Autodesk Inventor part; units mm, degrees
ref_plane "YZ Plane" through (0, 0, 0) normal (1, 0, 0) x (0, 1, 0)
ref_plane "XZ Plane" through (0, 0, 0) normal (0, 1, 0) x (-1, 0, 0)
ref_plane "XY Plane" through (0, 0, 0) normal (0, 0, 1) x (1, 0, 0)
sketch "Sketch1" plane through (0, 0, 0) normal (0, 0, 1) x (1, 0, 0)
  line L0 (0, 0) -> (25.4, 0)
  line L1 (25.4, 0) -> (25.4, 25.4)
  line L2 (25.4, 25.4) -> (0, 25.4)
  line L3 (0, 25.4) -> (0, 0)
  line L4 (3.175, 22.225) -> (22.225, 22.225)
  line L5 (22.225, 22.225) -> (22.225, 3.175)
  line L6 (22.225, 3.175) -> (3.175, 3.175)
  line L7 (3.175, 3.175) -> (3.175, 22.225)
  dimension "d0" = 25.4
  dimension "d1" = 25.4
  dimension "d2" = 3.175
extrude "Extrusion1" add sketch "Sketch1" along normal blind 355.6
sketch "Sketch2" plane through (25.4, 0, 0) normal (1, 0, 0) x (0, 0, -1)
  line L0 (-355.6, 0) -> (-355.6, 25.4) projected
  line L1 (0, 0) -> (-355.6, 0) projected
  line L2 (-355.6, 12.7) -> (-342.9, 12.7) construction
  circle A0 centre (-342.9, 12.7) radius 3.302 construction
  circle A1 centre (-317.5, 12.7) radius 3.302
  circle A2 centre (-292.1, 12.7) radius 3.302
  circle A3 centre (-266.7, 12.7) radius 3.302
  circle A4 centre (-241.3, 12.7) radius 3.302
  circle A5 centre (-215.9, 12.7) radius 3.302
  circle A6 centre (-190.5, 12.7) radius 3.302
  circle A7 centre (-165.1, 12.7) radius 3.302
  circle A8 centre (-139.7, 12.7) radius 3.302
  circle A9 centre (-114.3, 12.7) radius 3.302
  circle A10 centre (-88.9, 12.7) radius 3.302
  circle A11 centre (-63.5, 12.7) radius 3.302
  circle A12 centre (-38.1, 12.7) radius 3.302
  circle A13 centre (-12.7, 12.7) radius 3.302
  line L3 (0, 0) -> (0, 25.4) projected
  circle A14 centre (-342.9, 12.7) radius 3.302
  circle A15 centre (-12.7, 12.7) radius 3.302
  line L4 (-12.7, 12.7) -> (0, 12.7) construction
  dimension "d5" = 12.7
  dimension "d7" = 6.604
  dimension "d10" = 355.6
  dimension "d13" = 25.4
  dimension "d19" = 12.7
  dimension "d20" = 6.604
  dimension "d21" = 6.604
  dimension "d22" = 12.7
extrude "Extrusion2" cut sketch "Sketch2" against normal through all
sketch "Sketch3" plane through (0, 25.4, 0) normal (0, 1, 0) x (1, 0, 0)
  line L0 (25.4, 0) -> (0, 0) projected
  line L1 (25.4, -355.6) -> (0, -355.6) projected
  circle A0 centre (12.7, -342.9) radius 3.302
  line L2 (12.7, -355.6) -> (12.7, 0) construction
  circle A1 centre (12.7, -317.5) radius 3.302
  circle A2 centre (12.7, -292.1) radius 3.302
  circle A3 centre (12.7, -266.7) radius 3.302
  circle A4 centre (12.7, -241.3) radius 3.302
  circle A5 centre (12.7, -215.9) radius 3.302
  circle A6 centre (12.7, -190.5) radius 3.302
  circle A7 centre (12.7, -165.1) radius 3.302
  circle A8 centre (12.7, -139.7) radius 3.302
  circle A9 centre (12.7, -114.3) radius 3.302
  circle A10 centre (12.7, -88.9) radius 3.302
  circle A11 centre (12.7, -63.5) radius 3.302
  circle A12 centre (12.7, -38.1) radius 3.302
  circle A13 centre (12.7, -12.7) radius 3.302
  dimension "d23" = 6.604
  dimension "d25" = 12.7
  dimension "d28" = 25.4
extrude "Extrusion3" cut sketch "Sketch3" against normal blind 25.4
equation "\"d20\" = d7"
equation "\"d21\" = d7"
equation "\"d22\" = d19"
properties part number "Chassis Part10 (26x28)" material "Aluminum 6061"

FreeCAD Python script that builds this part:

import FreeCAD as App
import Part
import Sketcher
from FreeCAD import Vector
Q = App.Units.Quantity


def add_polygon(sketch, points):
    """Adds a closed chain of lines whose ends are joined by coincident constraints."""
    first, n = sketch.GeometryCount, len(points)
    for a, b in zip(points, points[1:] + points[:1]):
        sketch.addGeometry(Part.LineSegment(App.Vector(*a, 0), App.Vector(*b, 0)), False)
    for i in range(n):
        sketch.addConstraint(Sketcher.Constraint("Coincident", first + i, 2, first + (i + 1) % n, 1))

doc = App.newDocument("Part")
body = doc.addObject("PartDesign::Body", "Body")

# Sketch on XY plane
sketch1 = doc.addObject("Sketcher::SketchObject", "Sketch")
body.addObject(sketch1)
sketch1.AttachmentSupport = (doc.XY_Plane, [""])
sketch1.MapMode = "FlatFace"
add_polygon(sketch1, [(0, 25), (0, 0), (25, 0), (25, 25)])  # lines 0-3
add_polygon(sketch1, [(3, 3), (3, 22), (22, 22), (22, 3)])  # lines 4-7
sketch1.addConstraint([
    Sketcher.Constraint("Vertical", 0),
    Sketcher.Constraint("Horizontal", 1),
    Sketcher.Constraint("Vertical", 2),
    Sketcher.Constraint("Horizontal", 3),
    Sketcher.Constraint("Vertical", 4),
    Sketcher.Constraint("Horizontal", 5),
    Sketcher.Constraint("Vertical", 6),
    Sketcher.Constraint("Horizontal", 7),
    Sketcher.Constraint("Coincident", 0, 2, -1, 1),
    Sketcher.Constraint("Equal", 3, 0),
    Sketcher.Constraint("Equal", 7, 4),
    Sketcher.Constraint("DistanceX", 1, 1, 1, 2, Q("1 in")),
    Sketcher.Constraint("DistanceX", -1, 1, 4, 2, Q("0.125 in")),
    Sketcher.Constraint("DistanceY", -1, 1, 6, 2, Q("0.125 in")),
    Sketcher.Constraint("DistanceY", 4, 2, 3, 2, Q("0.125 in")),
])
pad1 = doc.addObject("PartDesign::Pad", "Pad")
body.addObject(pad1)
pad1.Profile = sketch1
pad1.Length = Q("14 in")

# Sketch on YZ plane
sketch2 = doc.addObject("Sketcher::SketchObject", "Sketch001")
body.addObject(sketch2)
sketch2.AttachmentSupport = (doc.YZ_Plane, [""])
sketch2.MapMode = "FlatFace"
sketch2.AttachmentOffset = App.Placement(Vector(0, 0, 1 * 25.4), App.Rotation())
sketch2.addGeometry([
    Part.Circle(Vector(12.7, 317.5, 0), Vector(0, 0, 1), 3.3),  # 0
    Part.Circle(Vector(12.7, 292.1, 0), Vector(0, 0, 1), 3.3),  # 1
    Part.Circle(Vector(12.7, 266.7, 0), Vector(0, 0, 1), 3.3),  # 2
    Part.Circle(Vector(12.7, 241.3, 0), Vector(0, 0, 1), 3.3),  # 3
    Part.Circle(Vector(12.7, 215.9, 0), Vector(0, 0, 1), 3.3),  # 4
    Part.Circle(Vector(12.7, 190.5, 0), Vector(0, 0, 1), 3.3),  # 5
    Part.Circle(Vector(12.7, 165.1, 0), Vector(0, 0, 1), 3.3),  # 6
    Part.Circle(Vector(12.7, 139.7, 0), Vector(0, 0, 1), 3.3),  # 7
    Part.Circle(Vector(12.7, 114.3, 0), Vector(0, 0, 1), 3.3),  # 8
    Part.Circle(Vector(12.7, 88.9, 0), Vector(0, 0, 1), 3.3),  # 9
    Part.Circle(Vector(12.7, 63.5, 0), Vector(0, 0, 1), 3.3),  # 10
    Part.Circle(Vector(12.7, 38.1, 0), Vector(0, 0, 1), 3.3),  # 11
    Part.Circle(Vector(12.7, 12.7, 0), Vector(0, 0, 1), 3.3),  # 12
    Part.Circle(Vector(12.7, 342.9, 0), Vector(0, 0, 1), 3.3),  # 13
], False)
sketch2.addConstraint([
    Sketcher.Constraint("Equal", 0, 1),
    Sketcher.Constraint("Equal", 1, 2),
    Sketcher.Constraint("Equal", 2, 3),
    Sketcher.Constraint("Equal", 3, 4),
    Sketcher.Constraint("Equal", 4, 5),
    Sketcher.Constraint("Equal", 5, 6),
    Sketcher.Constraint("Equal", 6, 7),
    Sketcher.Constraint("Equal", 7, 8),
    Sketcher.Constraint("Equal", 8, 9),
    Sketcher.Constraint("Equal", 9, 10),
    Sketcher.Constraint("Equal", 10, 11),
    Sketcher.Constraint("Equal", 11, 12),
    Sketcher.Constraint("Equal", 12, 13),
    Sketcher.Constraint("Vertical", 0, 3, 1, 3),
    Sketcher.Constraint("Vertical", 1, 3, 2, 3),
    Sketcher.Constraint("Vertical", 2, 3, 3, 3),
    Sketcher.Constraint("Vertical", 3, 3, 4, 3),
    Sketcher.Constraint("Vertical", 4, 3, 5, 3),
    Sketcher.Constraint("Vertical", 5, 3, 6, 3),
    Sketcher.Constraint("Vertical", 6, 3, 7, 3),
    Sketcher.Constraint("Vertical", 7, 3, 8, 3),
    Sketcher.Constraint("Vertical", 8, 3, 9, 3),
    Sketcher.Constraint("Vertical", 9, 3, 10, 3),
    Sketcher.Constraint("Vertical", 10, 3, 11, 3),
    Sketcher.Constraint("Vertical", 11, 3, 12, 3),
    Sketcher.Constraint("Vertical", 12, 3, 13, 3),
    Sketcher.Constraint("Diameter", 0, Q("0.26 in")),
    Sketcher.Constraint("DistanceY", 1, 3, 0, 3, Q("1 in")),
    Sketcher.Constraint("DistanceY", 2, 3, 1, 3, Q("1 in")),
    Sketcher.Constraint("DistanceY", 3, 3, 2, 3, Q("1 in")),
    Sketcher.Constraint("DistanceY", 4, 3, 3, 3, Q("1 in")),
    Sketcher.Constraint("DistanceY", 5, 3, 4, 3, Q("1 in")),
    Sketcher.Constraint("DistanceY", 6, 3, 5, 3, Q("1 in")),
    Sketcher.Constraint("DistanceY", 7, 3, 6, 3, Q("1 in")),
    Sketcher.Constraint("DistanceY", 8, 3, 7, 3, Q("1 in")),
    Sketcher.Constraint("DistanceY", 9, 3, 8, 3, Q("1 in")),
    Sketcher.Constraint("DistanceY", 10, 3, 9, 3, Q("1 in")),
    Sketcher.Constraint("DistanceY", 11, 3, 10, 3, Q("1 in")),
    Sketcher.Constraint("DistanceY", 12, 3, 11, 3, Q("1 in")),
    Sketcher.Constraint("DistanceY", 0, 3, 13, 3, Q("1 in")),
    Sketcher.Constraint("DistanceX", -1, 1, 0, 3, Q("0.5 in")),
    Sketcher.Constraint("DistanceY", -1, 1, 12, 3, Q("0.5 in")),
])
pocket1 = doc.addObject("PartDesign::Pocket", "Pocket")
body.addObject(pocket1)
pocket1.Profile = sketch2
pocket1.Type = "ThroughAll"

# Sketch on XZ plane
sketch3 = doc.addObject("Sketcher::SketchObject", "Sketch002")
body.addObject(sketch3)
sketch3.AttachmentSupport = (doc.XZ_Plane, [""])
sketch3.MapMode = "FlatFace"
sketch3.AttachmentOffset = App.Placement(Vector(0, 0, -1 * 25.4), App.Rotation())
sketch3.addGeometry([
    Part.Circle(Vector(12.7, 342.9, 0), Vector(0, 0, 1), 3.3),  # 0
    Part.Circle(Vector(12.7, 317.5, 0), Vector(0, 0, 1), 3.3),  # 1
    Part.Circle(Vector(12.7, 292.1, 0), Vector(0, 0, 1), 3.3),  # 2
    Part.Circle(Vector(12.7, 266.7, 0), Vector(0, 0, 1), 3.3),  # 3
    Part.Circle(Vector(12.7, 241.3, 0), Vector(0, 0, 1), 3.3),  # 4
    Part.Circle(Vector(12.7, 215.9, 0), Vector(0, 0, 1), 3.3),  # 5
    Part.Circle(Vector(12.7, 190.5, 0), Vector(0, 0, 1), 3.3),  # 6
    Part.Circle(Vector(12.7, 165.1, 0), Vector(0, 0, 1), 3.3),  # 7
    Part.Circle(Vector(12.7, 139.7, 0), Vector(0, 0, 1), 3.3),  # 8
    Part.Circle(Vector(12.7, 114.3, 0), Vector(0, 0, 1), 3.3),  # 9
    Part.Circle(Vector(12.7, 88.9, 0), Vector(0, 0, 1), 3.3),  # 10
    Part.Circle(Vector(12.7, 63.5, 0), Vector(0, 0, 1), 3.3),  # 11
    Part.Circle(Vector(12.7, 38.1, 0), Vector(0, 0, 1), 3.3),  # 12
    Part.Circle(Vector(12.7, 12.7, 0), Vector(0, 0, 1), 3.3),  # 13
], False)
sketch3.addConstraint([
    Sketcher.Constraint("Equal", 0, 1),
    Sketcher.Constraint("Equal", 1, 2),
    Sketcher.Constraint("Equal", 2, 3),
    Sketcher.Constraint("Equal", 3, 4),
    Sketcher.Constraint("Equal", 4, 5),
    Sketcher.Constraint("Equal", 5, 6),
    Sketcher.Constraint("Equal", 6, 7),
    Sketcher.Constraint("Equal", 7, 8),
    Sketcher.Constraint("Equal", 8, 9),
    Sketcher.Constraint("Equal", 9, 10),
    Sketcher.Constraint("Equal", 10, 11),
    Sketcher.Constraint("Equal", 11, 12),
    Sketcher.Constraint("Equal", 12, 13),
    Sketcher.Constraint("Vertical", 0, 3, 1, 3),
    Sketcher.Constraint("Vertical", 1, 3, 2, 3),
    Sketcher.Constraint("Vertical", 2, 3, 3, 3),
    Sketcher.Constraint("Vertical", 3, 3, 4, 3),
    Sketcher.Constraint("Vertical", 4, 3, 5, 3),
    Sketcher.Constraint("Vertical", 5, 3, 6, 3),
    Sketcher.Constraint("Vertical", 6, 3, 7, 3),
    Sketcher.Constraint("Vertical", 7, 3, 8, 3),
    Sketcher.Constraint("Vertical", 8, 3, 9, 3),
    Sketcher.Constraint("Vertical", 9, 3, 10, 3),
    Sketcher.Constraint("Vertical", 10, 3, 11, 3),
    Sketcher.Constraint("Vertical", 11, 3, 12, 3),
    Sketcher.Constraint("Vertical", 12, 3, 13, 3),
    Sketcher.Constraint("Diameter", 0, Q("0.26 in")),
    Sketcher.Constraint("DistanceY", 1, 3, 0, 3, Q("1 in")),
    Sketcher.Constraint("DistanceY", 2, 3, 1, 3, Q("1 in")),
    Sketcher.Constraint("DistanceY", 3, 3, 2, 3, Q("1 in")),
    Sketcher.Constraint("DistanceY", 4, 3, 3, 3, Q("1 in")),
    Sketcher.Constraint("DistanceY", 5, 3, 4, 3, Q("1 in")),
    Sketcher.Constraint("DistanceY", 6, 3, 5, 3, Q("1 in")),
    Sketcher.Constraint("DistanceY", 7, 3, 6, 3, Q("1 in")),
    Sketcher.Constraint("DistanceY", 8, 3, 7, 3, Q("1 in")),
    Sketcher.Constraint("DistanceY", 9, 3, 8, 3, Q("1 in")),
    Sketcher.Constraint("DistanceY", 10, 3, 9, 3, Q("1 in")),
    Sketcher.Constraint("DistanceY", 11, 3, 10, 3, Q("1 in")),
    Sketcher.Constraint("DistanceY", 12, 3, 11, 3, Q("1 in")),
    Sketcher.Constraint("DistanceY", 13, 3, 12, 3, Q("1 in")),
    Sketcher.Constraint("DistanceX", -1, 1, 0, 3, Q("0.5 in")),
    Sketcher.Constraint("DistanceY", -1, 1, 13, 3, Q("0.5 in")),
])
pocket2 = doc.addObject("PartDesign::Pocket", "Pocket001")
body.addObject(pocket2)
pocket2.Profile = sketch3
pocket2.Length = Q("1 in")
pocket2.Reversed = True

doc.recompute()
